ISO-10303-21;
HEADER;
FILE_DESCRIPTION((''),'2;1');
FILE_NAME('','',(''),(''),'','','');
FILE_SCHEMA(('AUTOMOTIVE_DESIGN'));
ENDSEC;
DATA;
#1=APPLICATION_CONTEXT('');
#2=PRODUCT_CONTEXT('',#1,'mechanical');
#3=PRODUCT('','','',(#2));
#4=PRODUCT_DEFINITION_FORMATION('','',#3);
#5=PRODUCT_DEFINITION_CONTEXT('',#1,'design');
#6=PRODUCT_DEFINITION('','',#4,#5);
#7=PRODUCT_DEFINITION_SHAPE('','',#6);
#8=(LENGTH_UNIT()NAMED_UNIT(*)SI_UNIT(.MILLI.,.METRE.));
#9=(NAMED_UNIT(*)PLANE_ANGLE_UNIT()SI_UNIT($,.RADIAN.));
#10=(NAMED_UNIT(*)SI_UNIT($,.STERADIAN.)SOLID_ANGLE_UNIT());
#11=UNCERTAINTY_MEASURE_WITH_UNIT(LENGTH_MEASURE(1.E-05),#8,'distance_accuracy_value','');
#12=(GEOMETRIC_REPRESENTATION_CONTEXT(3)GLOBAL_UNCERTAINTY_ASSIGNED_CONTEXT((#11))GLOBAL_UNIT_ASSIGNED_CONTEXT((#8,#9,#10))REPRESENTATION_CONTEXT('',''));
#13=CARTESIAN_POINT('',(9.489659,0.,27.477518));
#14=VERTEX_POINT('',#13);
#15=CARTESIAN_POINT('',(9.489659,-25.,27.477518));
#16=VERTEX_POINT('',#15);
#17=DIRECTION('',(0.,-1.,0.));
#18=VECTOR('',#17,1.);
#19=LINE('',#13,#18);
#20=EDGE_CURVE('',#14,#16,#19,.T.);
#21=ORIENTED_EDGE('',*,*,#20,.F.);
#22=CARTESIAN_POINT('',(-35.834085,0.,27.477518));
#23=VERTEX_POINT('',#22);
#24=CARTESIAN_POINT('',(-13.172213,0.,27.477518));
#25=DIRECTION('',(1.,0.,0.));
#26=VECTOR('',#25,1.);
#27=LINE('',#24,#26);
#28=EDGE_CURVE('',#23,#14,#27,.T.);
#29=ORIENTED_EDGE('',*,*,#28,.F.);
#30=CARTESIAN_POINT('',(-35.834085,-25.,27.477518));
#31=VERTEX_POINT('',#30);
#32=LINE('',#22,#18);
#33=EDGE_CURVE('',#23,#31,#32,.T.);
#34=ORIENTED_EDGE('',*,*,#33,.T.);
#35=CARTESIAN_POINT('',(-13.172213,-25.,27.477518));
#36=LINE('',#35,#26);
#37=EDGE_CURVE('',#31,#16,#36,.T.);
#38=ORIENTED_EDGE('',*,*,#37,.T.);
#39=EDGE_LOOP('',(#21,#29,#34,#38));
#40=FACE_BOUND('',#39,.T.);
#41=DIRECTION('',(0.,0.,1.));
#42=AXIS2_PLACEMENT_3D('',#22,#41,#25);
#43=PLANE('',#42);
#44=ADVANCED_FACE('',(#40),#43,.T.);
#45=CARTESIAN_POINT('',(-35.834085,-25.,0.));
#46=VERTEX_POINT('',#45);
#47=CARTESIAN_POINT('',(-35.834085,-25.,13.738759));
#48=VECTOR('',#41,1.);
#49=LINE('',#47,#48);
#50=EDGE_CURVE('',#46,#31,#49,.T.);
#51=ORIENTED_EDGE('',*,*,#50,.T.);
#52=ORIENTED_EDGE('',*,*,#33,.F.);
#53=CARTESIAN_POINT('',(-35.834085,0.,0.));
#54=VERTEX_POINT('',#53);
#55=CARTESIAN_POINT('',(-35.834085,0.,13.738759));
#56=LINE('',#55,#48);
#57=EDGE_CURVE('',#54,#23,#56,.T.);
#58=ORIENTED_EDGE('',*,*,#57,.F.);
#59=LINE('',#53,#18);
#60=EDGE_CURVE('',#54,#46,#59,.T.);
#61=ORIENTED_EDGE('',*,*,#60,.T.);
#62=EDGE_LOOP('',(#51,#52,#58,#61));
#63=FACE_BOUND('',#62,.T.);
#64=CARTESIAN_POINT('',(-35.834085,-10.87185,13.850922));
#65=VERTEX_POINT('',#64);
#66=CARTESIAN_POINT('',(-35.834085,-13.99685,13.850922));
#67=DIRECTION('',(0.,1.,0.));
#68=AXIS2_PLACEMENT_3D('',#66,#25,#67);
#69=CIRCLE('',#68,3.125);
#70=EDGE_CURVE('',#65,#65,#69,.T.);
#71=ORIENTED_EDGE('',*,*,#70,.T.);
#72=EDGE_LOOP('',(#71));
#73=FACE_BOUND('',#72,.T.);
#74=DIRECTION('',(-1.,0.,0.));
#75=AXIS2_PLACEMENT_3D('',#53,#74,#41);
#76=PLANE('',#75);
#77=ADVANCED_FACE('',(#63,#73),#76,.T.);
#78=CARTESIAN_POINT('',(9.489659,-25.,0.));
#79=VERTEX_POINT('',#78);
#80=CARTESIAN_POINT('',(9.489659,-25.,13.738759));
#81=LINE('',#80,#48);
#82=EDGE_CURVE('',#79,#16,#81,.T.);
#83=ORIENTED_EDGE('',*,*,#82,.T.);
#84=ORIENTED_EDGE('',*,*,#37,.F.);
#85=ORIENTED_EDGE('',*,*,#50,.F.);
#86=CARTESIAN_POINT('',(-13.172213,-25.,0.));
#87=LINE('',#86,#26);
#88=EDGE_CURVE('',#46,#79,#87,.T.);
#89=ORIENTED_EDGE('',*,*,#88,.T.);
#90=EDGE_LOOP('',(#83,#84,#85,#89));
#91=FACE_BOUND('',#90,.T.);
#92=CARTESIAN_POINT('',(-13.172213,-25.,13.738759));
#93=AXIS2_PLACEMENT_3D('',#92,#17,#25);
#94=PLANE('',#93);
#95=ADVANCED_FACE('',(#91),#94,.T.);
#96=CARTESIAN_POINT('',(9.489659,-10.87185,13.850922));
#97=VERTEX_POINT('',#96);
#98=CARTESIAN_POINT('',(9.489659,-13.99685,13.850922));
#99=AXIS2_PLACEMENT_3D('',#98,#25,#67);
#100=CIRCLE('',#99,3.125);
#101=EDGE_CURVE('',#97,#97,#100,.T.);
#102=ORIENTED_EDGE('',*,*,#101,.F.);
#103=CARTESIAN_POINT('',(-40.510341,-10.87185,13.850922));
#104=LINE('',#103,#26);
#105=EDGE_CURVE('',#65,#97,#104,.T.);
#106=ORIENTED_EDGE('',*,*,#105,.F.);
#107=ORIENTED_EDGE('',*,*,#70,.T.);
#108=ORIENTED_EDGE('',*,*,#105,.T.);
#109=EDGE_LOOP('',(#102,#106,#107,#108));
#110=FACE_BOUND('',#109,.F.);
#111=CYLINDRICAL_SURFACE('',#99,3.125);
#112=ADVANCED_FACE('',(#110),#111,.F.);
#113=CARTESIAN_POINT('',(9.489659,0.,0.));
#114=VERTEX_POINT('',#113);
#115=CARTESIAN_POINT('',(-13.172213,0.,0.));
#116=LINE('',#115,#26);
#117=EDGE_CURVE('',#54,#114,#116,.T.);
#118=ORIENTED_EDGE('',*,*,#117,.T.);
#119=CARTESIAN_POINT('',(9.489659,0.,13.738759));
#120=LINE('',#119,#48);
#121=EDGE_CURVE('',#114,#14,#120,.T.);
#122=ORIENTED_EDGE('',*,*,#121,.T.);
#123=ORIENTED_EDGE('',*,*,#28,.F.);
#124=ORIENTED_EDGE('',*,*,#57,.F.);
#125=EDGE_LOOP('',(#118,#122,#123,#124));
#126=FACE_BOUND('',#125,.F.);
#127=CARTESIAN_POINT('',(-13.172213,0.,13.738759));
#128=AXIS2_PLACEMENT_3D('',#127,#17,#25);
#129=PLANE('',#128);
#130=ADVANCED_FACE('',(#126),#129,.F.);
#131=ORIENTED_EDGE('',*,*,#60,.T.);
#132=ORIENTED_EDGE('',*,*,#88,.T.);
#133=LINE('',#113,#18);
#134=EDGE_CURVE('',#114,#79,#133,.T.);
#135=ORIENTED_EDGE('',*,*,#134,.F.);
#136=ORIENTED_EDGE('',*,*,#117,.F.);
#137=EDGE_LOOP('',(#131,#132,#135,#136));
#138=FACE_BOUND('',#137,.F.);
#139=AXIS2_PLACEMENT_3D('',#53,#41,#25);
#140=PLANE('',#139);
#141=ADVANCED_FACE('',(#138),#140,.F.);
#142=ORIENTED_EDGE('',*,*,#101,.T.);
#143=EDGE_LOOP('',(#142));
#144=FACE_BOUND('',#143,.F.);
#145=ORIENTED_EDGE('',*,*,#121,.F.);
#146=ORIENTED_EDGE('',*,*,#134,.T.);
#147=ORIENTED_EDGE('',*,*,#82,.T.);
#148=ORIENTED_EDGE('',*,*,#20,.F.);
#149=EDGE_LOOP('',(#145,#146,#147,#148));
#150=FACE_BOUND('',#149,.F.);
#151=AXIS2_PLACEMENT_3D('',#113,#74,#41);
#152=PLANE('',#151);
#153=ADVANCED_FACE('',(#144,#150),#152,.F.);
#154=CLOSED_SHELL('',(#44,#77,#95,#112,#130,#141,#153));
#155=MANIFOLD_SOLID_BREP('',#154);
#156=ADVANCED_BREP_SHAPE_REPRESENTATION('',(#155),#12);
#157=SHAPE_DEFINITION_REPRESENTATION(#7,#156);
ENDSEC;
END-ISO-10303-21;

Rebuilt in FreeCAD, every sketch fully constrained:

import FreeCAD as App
import Part
import Sketcher

doc = App.newDocument("Part")
body = doc.addObject("PartDesign::Body", "Body")

sketch1 = body.newObject("Sketcher::SketchObject", "Sketch")
sketch1.AttachmentSupport = (doc.getObject("XZ_Plane"), [""])
sketch1.MapMode = "FlatFace"
sketch1.addGeometry([
    Part.LineSegment(App.Vector(-36, 27, 0), App.Vector(-36, 0, 0)),
    Part.LineSegment(App.Vector(-36, 0, 0), App.Vector(9, 0, 0)),
    Part.LineSegment(App.Vector(9, 0, 0), App.Vector(9, 27, 0)),
    Part.LineSegment(App.Vector(9, 27, 0), App.Vector(-36, 27, 0)),
], False)
sketch1.addConstraint([
    Sketcher.Constraint("Coincident", 0, 2, 1, 1),
    Sketcher.Constraint("Coincident", 1, 2, 2, 1),
    Sketcher.Constraint("Coincident", 2, 2, 3, 1),
    Sketcher.Constraint("Coincident", 3, 2, 0, 1),
    Sketcher.Constraint("Vertical", 0),
    Sketcher.Constraint("Horizontal", 1),
    Sketcher.Constraint("Vertical", 2),
    Sketcher.Constraint("Horizontal", 3),
    Sketcher.Constraint("PointOnObject", 0, 2, -1),
    Sketcher.Constraint("DistanceY", 0, 2, 0, 1, 27.477518),
    Sketcher.Constraint("DistanceX", 1, 1, 1, 2, 45.323744),
    Sketcher.Constraint("DistanceX", -1, 1, 1, 2, 9.489659),
])
pad1 = body.newObject("PartDesign::Pad", "Pad")
pad1.Profile = sketch1
pad1.Length = 25

sketch2 = body.newObject("Sketcher::SketchObject", "Sketch001")
sketch2.AttachmentSupport = (doc.getObject("YZ_Plane"), [""])
sketch2.MapMode = "FlatFace"
sketch2.AttachmentOffset = App.Placement(App.Vector(0, 0, 9.489659), App.Rotation())
sketch2.addGeometry(Part.Circle(App.Vector(-14, 13.9, 0), App.Vector(0, 0, 1), 3.1), False)
sketch2.addConstraint([
    Sketcher.Constraint("Diameter", 0, 6.25),
    Sketcher.Constraint("DistanceX", 0, 3, -1, 1, 13.99685),
    Sketcher.Constraint("DistanceY", -1, 1, 0, 3, 13.850922),
])
pocket1 = body.newObject("PartDesign::Pocket", "Pocket")
pocket1.Profile = sketch2
pocket1.Length = 100
pocket1.Midplane = True

doc.recompute()
